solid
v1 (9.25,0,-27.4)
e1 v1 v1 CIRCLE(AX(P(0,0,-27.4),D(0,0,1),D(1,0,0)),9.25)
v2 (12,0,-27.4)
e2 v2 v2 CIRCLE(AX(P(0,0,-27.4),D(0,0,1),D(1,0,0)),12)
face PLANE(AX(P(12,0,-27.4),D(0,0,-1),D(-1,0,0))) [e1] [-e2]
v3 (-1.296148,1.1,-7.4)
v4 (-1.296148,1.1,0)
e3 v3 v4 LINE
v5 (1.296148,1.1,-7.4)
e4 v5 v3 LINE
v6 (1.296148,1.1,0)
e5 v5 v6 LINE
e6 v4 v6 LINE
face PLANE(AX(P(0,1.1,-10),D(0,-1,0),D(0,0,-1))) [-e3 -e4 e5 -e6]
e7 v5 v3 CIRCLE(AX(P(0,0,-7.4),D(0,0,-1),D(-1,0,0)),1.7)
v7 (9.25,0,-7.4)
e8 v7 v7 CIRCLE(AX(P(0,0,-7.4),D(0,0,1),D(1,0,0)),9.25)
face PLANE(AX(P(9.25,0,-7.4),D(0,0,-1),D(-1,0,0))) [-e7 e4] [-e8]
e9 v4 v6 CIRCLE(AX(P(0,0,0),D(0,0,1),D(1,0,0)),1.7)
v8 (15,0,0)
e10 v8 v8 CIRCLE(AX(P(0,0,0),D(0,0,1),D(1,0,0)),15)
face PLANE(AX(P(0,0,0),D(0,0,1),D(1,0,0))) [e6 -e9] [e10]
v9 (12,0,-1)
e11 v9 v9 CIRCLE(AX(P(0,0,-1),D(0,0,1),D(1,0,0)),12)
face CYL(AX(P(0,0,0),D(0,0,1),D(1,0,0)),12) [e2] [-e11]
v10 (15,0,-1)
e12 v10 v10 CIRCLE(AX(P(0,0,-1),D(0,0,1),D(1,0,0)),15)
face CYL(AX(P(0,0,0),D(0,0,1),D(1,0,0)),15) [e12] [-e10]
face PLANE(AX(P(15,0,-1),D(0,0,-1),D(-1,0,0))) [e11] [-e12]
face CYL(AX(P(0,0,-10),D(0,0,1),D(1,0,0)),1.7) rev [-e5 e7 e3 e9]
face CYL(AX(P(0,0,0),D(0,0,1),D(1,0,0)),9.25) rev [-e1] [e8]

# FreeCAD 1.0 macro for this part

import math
import FreeCAD as App
import Part
import Sketcher

doc = App.newDocument("Part")
body = doc.addObject("PartDesign::Body", "Body")

# Sketch on XZ plane
sketch1 = body.newObject("Sketcher::SketchObject", "Sketch")
sketch1.AttachmentSupport = (doc.getObject("XZ_Plane"), [""])
sketch1.MapMode = "FlatFace"
sketch1.addGeometry(Part.LineSegment(App.Vector(0, 0, 0), App.Vector(15, 0, 0)), False)
sketch1.addGeometry(Part.LineSegment(App.Vector(15, 0, 0), App.Vector(15, -1, 0)), False)
sketch1.addGeometry(Part.LineSegment(App.Vector(15, -1, 0), App.Vector(12, -1, 0)), False)
sketch1.addGeometry(Part.LineSegment(App.Vector(12, -1, 0), App.Vector(12, -27.4, 0)), False)
sketch1.addGeometry(Part.LineSegment(App.Vector(12, -27.4, 0), App.Vector(9.2, -27.4, 0)), False)
sketch1.addGeometry(Part.LineSegment(App.Vector(9.2, -27.4, 0), App.Vector(9.2, -7.4, 0)), False)
sketch1.addGeometry(Part.LineSegment(App.Vector(9.2, -7.4, 0), App.Vector(0, -7.4, 0)), False)
sketch1.addGeometry(Part.LineSegment(App.Vector(0, -7.4, 0), App.Vector(0, 0, 0)), False)
sketch1.addConstraint(Sketcher.Constraint("Coincident", 0, 2, 1, 1))
sketch1.addConstraint(Sketcher.Constraint("Coincident", 1, 2, 2, 1))
sketch1.addConstraint(Sketcher.Constraint("Coincident", 2, 2, 3, 1))
sketch1.addConstraint(Sketcher.Constraint("Coincident", 3, 2, 4, 1))
sketch1.addConstraint(Sketcher.Constraint("Coincident", 4, 2, 5, 1))
sketch1.addConstraint(Sketcher.Constraint("Coincident", 5, 2, 6, 1))
sketch1.addConstraint(Sketcher.Constraint("Coincident", 6, 2, 7, 1))
sketch1.addConstraint(Sketcher.Constraint("Coincident", 7, 2, 0, 1))
sketch1.addConstraint(Sketcher.Constraint("Horizontal", 0))
sketch1.addConstraint(Sketcher.Constraint("Vertical", 1))
sketch1.addConstraint(Sketcher.Constraint("Horizontal", 2))
sketch1.addConstraint(Sketcher.Constraint("Vertical", 3))
sketch1.addConstraint(Sketcher.Constraint("Horizontal", 4))
sketch1.addConstraint(Sketcher.Constraint("Vertical", 5))
sketch1.addConstraint(Sketcher.Constraint("Horizontal", 6))
sketch1.addConstraint(Sketcher.Constraint("Vertical", 7))
sketch1.addConstraint(Sketcher.Constraint("Coincident", 7, 2, -1, 1))
sketch1.addConstraint(Sketcher.Constraint("DistanceX", 0, 1, 0, 2, 15.0))
sketch1.addConstraint(Sketcher.Constraint("DistanceX", 2, 2, 2, 1, 3.0))
sketch1.addConstraint(Sketcher.Constraint("DistanceY", 1, 2, 1, 1, 1.0))
sketch1.addConstraint(Sketcher.Constraint("DistanceY", 5, 1, 5, 2, 20.0))
sketch1.addConstraint(Sketcher.Constraint("DistanceY", 3, 2, 3, 1, 26.4))
sketch1.addConstraint(Sketcher.Constraint("DistanceX", 4, 2, 4, 1, 2.75))
revolution = body.newObject("PartDesign::Revolution", "Revolution")
revolution.Profile = sketch1
revolution.ReferenceAxis = (sketch1, ["V_Axis"])
revolution.Angle = 360

# Sketch on XY plane
sketch2 = body.newObject("Sketcher::SketchObject", "Sketch001")
sketch2.AttachmentSupport = (doc.getObject("XY_Plane"), [""])
sketch2.MapMode = "FlatFace"
sketch2.addGeometry(Part.LineSegment(App.Vector(1.3, 1.1, 0), App.Vector(-1.3, 1.1, 0)), False)
sketch2.addGeometry(Part.ArcOfCircle(Part.Circle(App.Vector(0, 0, 0), App.Vector(0, 0, 1), 1.7), math.radians(140), math.radians(400)), False)
sketch2.addConstraint(Sketcher.Constraint("Coincident", 0, 1, 1, 2))
sketch2.addConstraint(Sketcher.Constraint("Coincident", 1, 1, 0, 2))
sketch2.addConstraint(Sketcher.Constraint("Horizontal", 0))
sketch2.addConstraint(Sketcher.Constraint("Coincident", 1, 3, -1, 1))
sketch2.addConstraint(Sketcher.Constraint("Radius", 1, 1.7))
sketch2.addConstraint(Sketcher.Constraint("DistanceY", -1, 1, 0, 1, 1.1))
pocket1 = body.newObject("PartDesign::Pocket", "Pocket")
pocket1.Profile = sketch2
pocket1.Length = 10

doc.recompute()
